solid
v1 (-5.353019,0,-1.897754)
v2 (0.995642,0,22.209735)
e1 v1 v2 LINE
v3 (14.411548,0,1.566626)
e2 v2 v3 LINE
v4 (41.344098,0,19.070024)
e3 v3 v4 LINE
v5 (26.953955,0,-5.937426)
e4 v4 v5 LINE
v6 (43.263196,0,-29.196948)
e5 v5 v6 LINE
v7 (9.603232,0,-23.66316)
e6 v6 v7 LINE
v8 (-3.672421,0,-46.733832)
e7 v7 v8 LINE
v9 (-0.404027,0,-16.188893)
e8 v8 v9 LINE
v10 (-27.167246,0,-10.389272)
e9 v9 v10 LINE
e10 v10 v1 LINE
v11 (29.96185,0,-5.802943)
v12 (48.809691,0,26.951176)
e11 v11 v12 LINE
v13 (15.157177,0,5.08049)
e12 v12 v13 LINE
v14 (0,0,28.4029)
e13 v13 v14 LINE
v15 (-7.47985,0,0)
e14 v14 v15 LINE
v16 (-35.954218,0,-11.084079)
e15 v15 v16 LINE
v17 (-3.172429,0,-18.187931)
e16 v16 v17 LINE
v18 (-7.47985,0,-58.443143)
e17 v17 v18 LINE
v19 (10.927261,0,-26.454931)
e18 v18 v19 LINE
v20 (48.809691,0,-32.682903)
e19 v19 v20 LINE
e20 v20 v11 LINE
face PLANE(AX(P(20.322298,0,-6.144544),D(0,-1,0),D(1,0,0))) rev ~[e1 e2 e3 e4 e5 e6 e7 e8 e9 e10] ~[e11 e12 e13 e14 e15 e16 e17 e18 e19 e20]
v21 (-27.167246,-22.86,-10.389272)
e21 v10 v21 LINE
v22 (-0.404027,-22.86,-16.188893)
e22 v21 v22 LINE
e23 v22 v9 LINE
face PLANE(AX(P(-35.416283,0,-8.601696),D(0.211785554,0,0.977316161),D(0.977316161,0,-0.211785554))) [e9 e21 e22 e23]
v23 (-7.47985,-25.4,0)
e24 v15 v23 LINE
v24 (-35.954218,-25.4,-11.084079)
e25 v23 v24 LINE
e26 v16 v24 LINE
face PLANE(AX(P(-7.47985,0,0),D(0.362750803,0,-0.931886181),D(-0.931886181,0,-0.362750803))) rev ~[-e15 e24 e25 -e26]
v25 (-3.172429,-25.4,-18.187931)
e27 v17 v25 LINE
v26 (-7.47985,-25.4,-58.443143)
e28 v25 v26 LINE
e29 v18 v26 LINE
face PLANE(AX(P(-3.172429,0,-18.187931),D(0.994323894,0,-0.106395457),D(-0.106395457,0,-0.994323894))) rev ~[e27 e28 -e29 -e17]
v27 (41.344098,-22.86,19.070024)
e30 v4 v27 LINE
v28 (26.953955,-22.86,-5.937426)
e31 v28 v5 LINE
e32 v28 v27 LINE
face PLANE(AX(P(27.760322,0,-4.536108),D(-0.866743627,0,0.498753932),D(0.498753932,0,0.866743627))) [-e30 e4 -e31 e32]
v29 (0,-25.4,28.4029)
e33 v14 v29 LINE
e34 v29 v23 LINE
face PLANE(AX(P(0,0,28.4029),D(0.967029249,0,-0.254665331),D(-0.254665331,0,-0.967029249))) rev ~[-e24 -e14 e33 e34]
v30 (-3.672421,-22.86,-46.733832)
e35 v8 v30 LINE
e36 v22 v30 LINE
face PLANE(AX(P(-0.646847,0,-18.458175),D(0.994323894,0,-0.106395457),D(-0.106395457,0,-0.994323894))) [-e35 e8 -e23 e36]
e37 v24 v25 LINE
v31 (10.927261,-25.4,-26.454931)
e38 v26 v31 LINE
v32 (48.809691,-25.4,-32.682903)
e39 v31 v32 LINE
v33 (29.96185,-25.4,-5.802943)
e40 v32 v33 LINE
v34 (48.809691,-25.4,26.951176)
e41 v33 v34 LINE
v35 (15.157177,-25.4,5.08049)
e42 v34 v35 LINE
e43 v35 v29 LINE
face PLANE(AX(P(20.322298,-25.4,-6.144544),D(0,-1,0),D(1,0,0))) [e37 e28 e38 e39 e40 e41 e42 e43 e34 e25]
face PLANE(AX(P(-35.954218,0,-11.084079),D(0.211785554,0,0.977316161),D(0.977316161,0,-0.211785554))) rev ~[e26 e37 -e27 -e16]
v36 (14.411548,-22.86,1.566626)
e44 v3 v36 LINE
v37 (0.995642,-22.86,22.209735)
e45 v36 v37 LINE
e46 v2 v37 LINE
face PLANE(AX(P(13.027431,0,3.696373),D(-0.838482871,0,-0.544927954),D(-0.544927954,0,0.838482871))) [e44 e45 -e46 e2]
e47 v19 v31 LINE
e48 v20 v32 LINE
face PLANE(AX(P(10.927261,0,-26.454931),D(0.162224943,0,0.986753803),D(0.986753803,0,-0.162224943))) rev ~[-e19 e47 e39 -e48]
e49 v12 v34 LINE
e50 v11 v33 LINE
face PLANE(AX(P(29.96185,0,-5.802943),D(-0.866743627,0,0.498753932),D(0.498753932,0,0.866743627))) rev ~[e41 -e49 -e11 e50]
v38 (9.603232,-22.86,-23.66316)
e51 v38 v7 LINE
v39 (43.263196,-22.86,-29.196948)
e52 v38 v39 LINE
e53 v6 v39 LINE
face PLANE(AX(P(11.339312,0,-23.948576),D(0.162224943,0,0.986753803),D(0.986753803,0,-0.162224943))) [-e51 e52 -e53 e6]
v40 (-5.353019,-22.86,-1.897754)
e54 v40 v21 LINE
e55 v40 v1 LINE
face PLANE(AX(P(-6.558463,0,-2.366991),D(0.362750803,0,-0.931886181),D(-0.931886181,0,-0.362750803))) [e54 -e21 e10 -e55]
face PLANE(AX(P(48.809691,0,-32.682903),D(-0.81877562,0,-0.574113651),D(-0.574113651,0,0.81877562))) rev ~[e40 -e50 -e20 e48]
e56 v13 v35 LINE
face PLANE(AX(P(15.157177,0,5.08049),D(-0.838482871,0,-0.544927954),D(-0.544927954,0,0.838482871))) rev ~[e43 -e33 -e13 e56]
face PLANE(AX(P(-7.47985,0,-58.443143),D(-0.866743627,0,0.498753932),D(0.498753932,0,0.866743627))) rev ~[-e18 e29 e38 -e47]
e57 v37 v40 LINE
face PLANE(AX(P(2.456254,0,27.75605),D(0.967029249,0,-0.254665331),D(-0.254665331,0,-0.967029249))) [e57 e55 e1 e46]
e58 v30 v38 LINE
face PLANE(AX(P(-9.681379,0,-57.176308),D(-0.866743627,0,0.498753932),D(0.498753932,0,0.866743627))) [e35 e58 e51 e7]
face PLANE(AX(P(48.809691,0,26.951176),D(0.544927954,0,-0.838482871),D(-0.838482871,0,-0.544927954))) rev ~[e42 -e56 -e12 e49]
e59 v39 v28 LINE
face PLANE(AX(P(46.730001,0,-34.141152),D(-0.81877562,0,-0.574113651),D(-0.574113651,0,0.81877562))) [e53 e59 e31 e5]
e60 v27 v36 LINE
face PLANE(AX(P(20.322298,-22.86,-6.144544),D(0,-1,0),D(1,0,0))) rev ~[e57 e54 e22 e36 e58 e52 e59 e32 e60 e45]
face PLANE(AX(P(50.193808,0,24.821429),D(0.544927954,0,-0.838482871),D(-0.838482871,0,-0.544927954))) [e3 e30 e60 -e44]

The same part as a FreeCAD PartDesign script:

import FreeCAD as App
import Part
import Sketcher
Q = App.Units.Quantity


def faces_at(feature, points):
    """Names of the faces that lie closest to the given points."""
    faces = feature.Shape.Faces
    near = lambda p: min(range(len(faces)), key=lambda i: faces[i].distToShape(Part.Vertex(*p))[0])
    return sorted({f"Face{near(p) + 1}" for p in points})

doc = App.newDocument("Part")
body = doc.addObject("PartDesign::Body", "Body")

# Sketch on XZ plane
sketch1 = doc.addObject("Sketcher::SketchObject", "Sketch")
body.addObject(sketch1)
sketch1.AttachmentSupport = (doc.XZ_Plane, [""])
sketch1.MapMode = "FlatFace"
sketch1.addGeometry([
    Part.LineSegment(App.Vector(15, 5, 0), App.Vector(0, 28, 0)),  # 0
    Part.LineSegment(App.Vector(0, 28, 0), App.Vector(-7, 0, 0)),  # 1
    Part.LineSegment(App.Vector(-7, 0, 0), App.Vector(-36, -11, 0)),  # 2
    Part.LineSegment(App.Vector(-36, -11, 0), App.Vector(-3, -18, 0)),  # 3
    Part.LineSegment(App.Vector(-3, -18, 0), App.Vector(-7, -58, 0)),  # 4
    Part.LineSegment(App.Vector(-7, -58, 0), App.Vector(11, -26, 0)),  # 5
    Part.LineSegment(App.Vector(11, -26, 0), App.Vector(49, -33, 0)),  # 6
    Part.LineSegment(App.Vector(49, -33, 0), App.Vector(30, -6, 0)),  # 7
    Part.LineSegment(App.Vector(30, -6, 0), App.Vector(49, 27, 0)),  # 8
    Part.LineSegment(App.Vector(49, 27, 0), App.Vector(15, 5, 0)),  # 9
], False)
sketch1.addConstraint([
    Sketcher.Constraint("Coincident", 0, 2, 1, 1),
    Sketcher.Constraint("Coincident", 1, 2, 2, 1),
    Sketcher.Constraint("Coincident", 2, 2, 3, 1),
    Sketcher.Constraint("Coincident", 3, 2, 4, 1),
    Sketcher.Constraint("Coincident", 4, 2, 5, 1),
    Sketcher.Constraint("Coincident", 5, 2, 6, 1),
    Sketcher.Constraint("Coincident", 6, 2, 7, 1),
    Sketcher.Constraint("Coincident", 7, 2, 8, 1),
    Sketcher.Constraint("Coincident", 8, 2, 9, 1),
    Sketcher.Constraint("Coincident", 9, 2, 0, 1),
    Sketcher.Constraint("PointOnObject", 0, 2, -2),
    Sketcher.Constraint("PointOnObject", 1, 2, -1),
    Sketcher.Constraint("Parallel", 5, 8),
    Sketcher.Constraint("Perpendicular", 0, 9),
    Sketcher.Constraint("Vertical", 1, 2, 4, 2),
    Sketcher.Constraint("Vertical", 6, 2, 8, 2),
    Sketcher.Constraint("Distance", 5, Q("1.4529999 in")),
    Sketcher.Constraint("DistanceY", -1, 1, 0, 2, 28.4029),
    Sketcher.Constraint("DistanceY", 5, 2, 3, 2, 8.267),
    Sketcher.Constraint("DistanceX", 1, 2, 7, 2, 37.441701),
    Sketcher.Constraint("Distance", 0, 27.815011),
    Sketcher.Constraint("Distance", 2, 30.555629),
    Sketcher.Constraint("Distance", 4, 40.485009),
    Sketcher.Constraint("Distance", 7, 32.829458),
    Sketcher.Constraint("DistanceX", 1, 2, -1, 1, 7.47985),
    Sketcher.Constraint("DistanceX", 2, 2, -1, 1, 35.954218),
    Sketcher.Constraint("DistanceX", 3, 2, -1, 1, 3.172429),
    Sketcher.Constraint("DistanceY", 3, 2, -1, 1, 18.187931),
    Sketcher.Constraint("DistanceX", -1, 1, 6, 2, 48.809691),
    Sketcher.Constraint("DistanceY", -1, 1, 9, 2, 5.08049),
])
pad1 = doc.addObject("PartDesign::Pad", "Pad")
body.addObject(pad1)
pad1.Profile = sketch1
pad1.Length = Q("1 in")
doc.recompute()

thickness = doc.addObject("PartDesign::Thickness", "Thickness")
body.addObject(thickness)
thickness.Base = (pad1, faces_at(pad1, [(6.428, 0, -15.02)]))
thickness.Value = Q("0.1 in")
thickness.Reversed = True
thickness.Join = "Intersection"

doc.recompute()
